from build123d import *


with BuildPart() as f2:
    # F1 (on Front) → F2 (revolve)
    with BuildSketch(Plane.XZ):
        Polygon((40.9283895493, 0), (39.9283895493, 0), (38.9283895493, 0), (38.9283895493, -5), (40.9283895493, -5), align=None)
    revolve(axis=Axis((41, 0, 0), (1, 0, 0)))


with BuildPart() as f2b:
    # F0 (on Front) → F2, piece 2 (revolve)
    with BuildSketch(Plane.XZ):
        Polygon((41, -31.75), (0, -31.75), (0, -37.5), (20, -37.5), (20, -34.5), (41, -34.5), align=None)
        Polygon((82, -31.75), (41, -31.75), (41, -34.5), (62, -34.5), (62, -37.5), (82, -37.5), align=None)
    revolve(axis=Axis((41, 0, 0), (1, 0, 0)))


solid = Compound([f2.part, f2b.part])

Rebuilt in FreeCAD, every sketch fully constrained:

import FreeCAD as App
import Part
import Sketcher

V = App.Vector
Q = App.Units.Quantity

doc = App.newDocument("Part")
body = doc.addObject("PartDesign::Body", "Body")

# Sketch on XZ plane
sketch1 = body.newObject("Sketcher::SketchObject", "Sketch")
sketch1.AttachmentSupport = (doc.getObject("XZ_Plane"), [""])
sketch1.MapMode = "FlatFace"
sketch1.addGeometry(Part.LineSegment(V(40.9, 0, 0), V(38.9, 0, 0)), False)
sketch1.addGeometry(Part.LineSegment(V(38.9, 0, 0), V(38.9, -5, 0)), False)
sketch1.addGeometry(Part.LineSegment(V(38.9, -5, 0), V(40.9, -5, 0)), False)
sketch1.addGeometry(Part.LineSegment(V(40.9, -5, 0), V(40.9, 0, 0)), False)
sketch1.addConstraint(Sketcher.Constraint("Coincident", 0, 2, 1, 1))
sketch1.addConstraint(Sketcher.Constraint("Coincident", 1, 2, 2, 1))
sketch1.addConstraint(Sketcher.Constraint("Coincident", 2, 2, 3, 1))
sketch1.addConstraint(Sketcher.Constraint("Coincident", 3, 2, 0, 1))
sketch1.addConstraint(Sketcher.Constraint("Horizontal", 0))
sketch1.addConstraint(Sketcher.Constraint("Vertical", 1))
sketch1.addConstraint(Sketcher.Constraint("Horizontal", 2))
sketch1.addConstraint(Sketcher.Constraint("Vertical", 3))
sketch1.addConstraint(Sketcher.Constraint("PointOnObject", 0, 2, -1))
sketch1.addConstraint(Sketcher.Constraint("DistanceX", 0, 2, 0, 1, Q("2 mm")))
sketch1.addConstraint(Sketcher.Constraint("DistanceY", 1, 2, 1, 1, Q("5 mm")))
sketch1.addConstraint(Sketcher.Constraint("DistanceX", -1, 1, 0, 2, Q("38.92839 mm")))
revolution = body.newObject("PartDesign::Revolution", "Revolution")
revolution.Profile = sketch1
revolution.ReferenceAxis = (sketch1, ["H_Axis"])
revolution.Angle = 360
body2 = doc.addObject("PartDesign::Body", "Body001")

# Sketch on XZ plane
sketch2 = body2.newObject("Sketcher::SketchObject", "Sketch001")
sketch2.AttachmentSupport = (doc.getObject("XZ_Plane001"), [""])
sketch2.MapMode = "FlatFace"
sketch2.addGeometry(Part.LineSegment(V(0, -31.8, 0), V(0, -37.5, 0)), False)
sketch2.addGeometry(Part.LineSegment(V(0, -37.5, 0), V(20, -37.5, 0)), False)
sketch2.addGeometry(Part.LineSegment(V(20, -37.5, 0), V(20, -34.5, 0)), False)
sketch2.addGeometry(Part.LineSegment(V(20, -34.5, 0), V(62, -34.5, 0)), False)
sketch2.addGeometry(Part.LineSegment(V(62, -34.5, 0), V(62, -37.5, 0)), False)
sketch2.addGeometry(Part.LineSegment(V(62, -37.5, 0), V(82, -37.5, 0)), False)
sketch2.addGeometry(Part.LineSegment(V(82, -37.5, 0), V(82, -31.8, 0)), False)
sketch2.addGeometry(Part.LineSegment(V(82, -31.8, 0), V(0, -31.8, 0)), False)
sketch2.addConstraint(Sketcher.Constraint("Coincident", 0, 2, 1, 1))
sketch2.addConstraint(Sketcher.Constraint("Coincident", 1, 2, 2, 1))
sketch2.addConstraint(Sketcher.Constraint("Coincident", 2, 2, 3, 1))
sketch2.addConstraint(Sketcher.Constraint("Coincident", 3, 2, 4, 1))
sketch2.addConstraint(Sketcher.Constraint("Coincident", 4, 2, 5, 1))
sketch2.addConstraint(Sketcher.Constraint("Coincident", 5, 2, 6, 1))
sketch2.addConstraint(Sketcher.Constraint("Coincident", 6, 2, 7, 1))
sketch2.addConstraint(Sketcher.Constraint("Coincident", 7, 2, 0, 1))
sketch2.addConstraint(Sketcher.Constraint("Vertical", 0))
sketch2.addConstraint(Sketcher.Constraint("Horizontal", 1))
sketch2.addConstraint(Sketcher.Constraint("Vertical", 2))
sketch2.addConstraint(Sketcher.Constraint("Horizontal", 3))
sketch2.addConstraint(Sketcher.Constraint("Vertical", 4))
sketch2.addConstraint(Sketcher.Constraint("Horizontal", 5))
sketch2.addConstraint(Sketcher.Constraint("Vertical", 6))
sketch2.addConstraint(Sketcher.Constraint("Horizontal", 7))
sketch2.addConstraint(Sketcher.Constraint("PointOnObject", 0, 2, -2))
sketch2.addConstraint(Sketcher.Constraint("Horizontal", 1, 2, 4, 2))
sketch2.addConstraint(Sketcher.Constraint("Equal", 1, 5))
sketch2.addConstraint(Sketcher.Constraint("DistanceX", 1, 1, 1, 2, Q("20 mm")))
sketch2.addConstraint(Sketcher.Constraint("DistanceX", 3, 1, 3, 2, Q("42 mm")))
sketch2.addConstraint(Sketcher.Constraint("DistanceY", 2, 1, 2, 2, Q("3 mm")))
sketch2.addConstraint(Sketcher.Constraint("DistanceY", 0, 2, 0, 1, Q("5.75 mm")))
sketch2.addConstraint(Sketcher.Constraint("DistanceY", 0, 2, -1, 1, Q("37.5 mm")))
revolution2 = body2.newObject("PartDesign::Revolution", "Revolution001")
revolution2.Profile = sketch2
revolution2.ReferenceAxis = (sketch2, ["H_Axis"])
revolution2.Angle = 360

doc.recompute()
